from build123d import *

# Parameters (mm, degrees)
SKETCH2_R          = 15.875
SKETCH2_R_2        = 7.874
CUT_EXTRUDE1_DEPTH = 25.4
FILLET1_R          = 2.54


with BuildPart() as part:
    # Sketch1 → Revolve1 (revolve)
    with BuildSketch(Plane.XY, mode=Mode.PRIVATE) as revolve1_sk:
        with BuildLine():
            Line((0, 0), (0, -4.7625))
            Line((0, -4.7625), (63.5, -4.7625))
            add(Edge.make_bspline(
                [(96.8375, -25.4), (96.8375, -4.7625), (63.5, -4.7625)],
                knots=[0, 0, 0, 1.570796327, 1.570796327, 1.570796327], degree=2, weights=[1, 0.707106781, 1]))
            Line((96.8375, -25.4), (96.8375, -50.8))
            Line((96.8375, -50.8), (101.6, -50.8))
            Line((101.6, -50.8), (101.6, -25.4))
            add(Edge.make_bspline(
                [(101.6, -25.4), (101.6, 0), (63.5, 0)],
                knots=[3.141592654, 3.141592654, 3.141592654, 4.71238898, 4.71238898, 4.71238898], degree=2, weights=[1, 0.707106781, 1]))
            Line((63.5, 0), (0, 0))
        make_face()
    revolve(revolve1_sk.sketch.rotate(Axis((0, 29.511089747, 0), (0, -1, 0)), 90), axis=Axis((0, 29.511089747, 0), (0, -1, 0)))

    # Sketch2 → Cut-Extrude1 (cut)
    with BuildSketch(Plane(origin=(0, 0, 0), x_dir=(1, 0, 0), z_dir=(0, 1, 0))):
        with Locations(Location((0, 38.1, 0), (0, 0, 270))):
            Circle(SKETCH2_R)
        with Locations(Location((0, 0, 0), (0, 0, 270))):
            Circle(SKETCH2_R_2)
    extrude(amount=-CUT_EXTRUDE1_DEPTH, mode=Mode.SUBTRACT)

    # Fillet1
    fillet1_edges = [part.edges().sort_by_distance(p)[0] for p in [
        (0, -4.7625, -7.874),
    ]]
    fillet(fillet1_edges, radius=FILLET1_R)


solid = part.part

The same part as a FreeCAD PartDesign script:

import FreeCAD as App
import Part
import Sketcher

V = App.Vector
Q = App.Units.Quantity


def edges_at(feature, points):
    """Names of the edges that pass closest to the given points."""
    edges = feature.Shape.Edges
    near = lambda p: min(range(len(edges)), key=lambda i: edges[i].distToShape(Part.Vertex(*p))[0])
    return sorted({f"Edge{near(p) + 1}" for p in points})

doc = App.newDocument("Part")
body = doc.addObject("PartDesign::Body", "Body")

# Sketch on XY plane
sketch1 = body.newObject("Sketcher::SketchObject", "Sketch")
sketch1.AttachmentSupport = (doc.getObject("XY_Plane"), [""])
sketch1.MapMode = "FlatFace"
sketch1.addGeometry(Part.LineSegment(V(0, 0, 0), V(0, -4.7625, 0)), False)
sketch1.addGeometry(Part.LineSegment(V(0, -4.7625, 0), V(63.5, -4.7625, 0)), False)
sketch1.addGeometry(Part.BSplineCurve([V(96.8375, -25.4, 0), V(96.8375, -4.7625, 0), V(63.5, -4.7625, 0)], [3, 3], [0, 1.570796327], False, 2, [1, 0.707106781, 1], False), False)
sketch1.addGeometry(Part.LineSegment(V(96.8375, -25.4, 0), V(96.8375, -50.8, 0)), False)
sketch1.addGeometry(Part.LineSegment(V(96.8375, -50.8, 0), V(101.6, -50.8, 0)), False)
sketch1.addGeometry(Part.LineSegment(V(101.6, -50.8, 0), V(101.6, -25.4, 0)), False)
sketch1.addGeometry(Part.BSplineCurve([V(101.6, -25.4, 0), V(101.6, 0, 0), V(63.5, 0, 0)], [3, 3], [3.141592654, 4.71238898], False, 2, [1, 0.707106781, 1], False), False)
sketch1.addGeometry(Part.LineSegment(V(63.5, 0, 0), V(0, 0, 0)), False)
sketch1.addConstraint(Sketcher.Constraint("Block", 2))
sketch1.addConstraint(Sketcher.Constraint("Block", 6))
sketch1.addConstraint(Sketcher.Constraint("Coincident", 0, 2, 1, 1))
sketch1.addConstraint(Sketcher.Constraint("Coincident", 1, 2, 2, 2))
sketch1.addConstraint(Sketcher.Constraint("Coincident", 2, 1, 3, 1))
sketch1.addConstraint(Sketcher.Constraint("Coincident", 3, 2, 4, 1))
sketch1.addConstraint(Sketcher.Constraint("Coincident", 4, 2, 5, 1))
sketch1.addConstraint(Sketcher.Constraint("Coincident", 5, 2, 6, 1))
sketch1.addConstraint(Sketcher.Constraint("Coincident", 6, 2, 7, 1))
sketch1.addConstraint(Sketcher.Constraint("Coincident", 7, 2, 0, 1))
sketch1.addConstraint(Sketcher.Constraint("Vertical", 0))
sketch1.addConstraint(Sketcher.Constraint("Horizontal", 1))
sketch1.addConstraint(Sketcher.Constraint("Vertical", 3))
sketch1.addConstraint(Sketcher.Constraint("Horizontal", 4))
sketch1.addConstraint(Sketcher.Constraint("Vertical", 5))
sketch1.addConstraint(Sketcher.Constraint("Horizontal", 7))
sketch1.addConstraint(Sketcher.Constraint("PointOnObject", 0, 2, -2))
sketch1.addConstraint(Sketcher.Constraint("DistanceY", 3, 2, 3, 1, Q("1 in")))
revolution = body.newObject("PartDesign::Revolution", "Revolution")
revolution.Profile = sketch1
revolution.ReferenceAxis = (sketch1, ["V_Axis"])
revolution.Angle = 360

# Sketch on XZ plane
sketch2 = body.newObject("Sketcher::SketchObject", "Sketch001")
sketch2.AttachmentSupport = (doc.getObject("XZ_Plane"), [""])
sketch2.MapMode = "FlatFace"
sketch2.addGeometry(Part.Circle(V(0, -38.1, 0), V(0, 0, 1), 15.875), False)
sketch2.addGeometry(Part.Circle(V(0, 0, 0), V(0, 0, 1), 7.874), False)
sketch2.addConstraint(Sketcher.Constraint("Coincident", 1, 3, -1, 1))
sketch2.addConstraint(Sketcher.Constraint("PointOnObject", 0, 3, -2))
sketch2.addConstraint(Sketcher.Constraint("Diameter", 0, Q("1.25 in")))
sketch2.addConstraint(Sketcher.Constraint("Diameter", 1, Q("0.62 in")))
sketch2.addConstraint(Sketcher.Constraint("DistanceY", 0, 3, -1, 1, Q("1.5 in")))
pocket1 = body.newObject("PartDesign::Pocket", "Pocket")
pocket1.Profile = sketch2
pocket1.Length = Q("1 in")
pocket1.Reversed = True
doc.recompute()

fillet = body.newObject("PartDesign::Fillet", "Fillet")
fillet.Base = (pocket1, edges_at(pocket1, [(0, -4.763, -7.874)]))
fillet.Radius = Q("0.1 in")

doc.recompute()
